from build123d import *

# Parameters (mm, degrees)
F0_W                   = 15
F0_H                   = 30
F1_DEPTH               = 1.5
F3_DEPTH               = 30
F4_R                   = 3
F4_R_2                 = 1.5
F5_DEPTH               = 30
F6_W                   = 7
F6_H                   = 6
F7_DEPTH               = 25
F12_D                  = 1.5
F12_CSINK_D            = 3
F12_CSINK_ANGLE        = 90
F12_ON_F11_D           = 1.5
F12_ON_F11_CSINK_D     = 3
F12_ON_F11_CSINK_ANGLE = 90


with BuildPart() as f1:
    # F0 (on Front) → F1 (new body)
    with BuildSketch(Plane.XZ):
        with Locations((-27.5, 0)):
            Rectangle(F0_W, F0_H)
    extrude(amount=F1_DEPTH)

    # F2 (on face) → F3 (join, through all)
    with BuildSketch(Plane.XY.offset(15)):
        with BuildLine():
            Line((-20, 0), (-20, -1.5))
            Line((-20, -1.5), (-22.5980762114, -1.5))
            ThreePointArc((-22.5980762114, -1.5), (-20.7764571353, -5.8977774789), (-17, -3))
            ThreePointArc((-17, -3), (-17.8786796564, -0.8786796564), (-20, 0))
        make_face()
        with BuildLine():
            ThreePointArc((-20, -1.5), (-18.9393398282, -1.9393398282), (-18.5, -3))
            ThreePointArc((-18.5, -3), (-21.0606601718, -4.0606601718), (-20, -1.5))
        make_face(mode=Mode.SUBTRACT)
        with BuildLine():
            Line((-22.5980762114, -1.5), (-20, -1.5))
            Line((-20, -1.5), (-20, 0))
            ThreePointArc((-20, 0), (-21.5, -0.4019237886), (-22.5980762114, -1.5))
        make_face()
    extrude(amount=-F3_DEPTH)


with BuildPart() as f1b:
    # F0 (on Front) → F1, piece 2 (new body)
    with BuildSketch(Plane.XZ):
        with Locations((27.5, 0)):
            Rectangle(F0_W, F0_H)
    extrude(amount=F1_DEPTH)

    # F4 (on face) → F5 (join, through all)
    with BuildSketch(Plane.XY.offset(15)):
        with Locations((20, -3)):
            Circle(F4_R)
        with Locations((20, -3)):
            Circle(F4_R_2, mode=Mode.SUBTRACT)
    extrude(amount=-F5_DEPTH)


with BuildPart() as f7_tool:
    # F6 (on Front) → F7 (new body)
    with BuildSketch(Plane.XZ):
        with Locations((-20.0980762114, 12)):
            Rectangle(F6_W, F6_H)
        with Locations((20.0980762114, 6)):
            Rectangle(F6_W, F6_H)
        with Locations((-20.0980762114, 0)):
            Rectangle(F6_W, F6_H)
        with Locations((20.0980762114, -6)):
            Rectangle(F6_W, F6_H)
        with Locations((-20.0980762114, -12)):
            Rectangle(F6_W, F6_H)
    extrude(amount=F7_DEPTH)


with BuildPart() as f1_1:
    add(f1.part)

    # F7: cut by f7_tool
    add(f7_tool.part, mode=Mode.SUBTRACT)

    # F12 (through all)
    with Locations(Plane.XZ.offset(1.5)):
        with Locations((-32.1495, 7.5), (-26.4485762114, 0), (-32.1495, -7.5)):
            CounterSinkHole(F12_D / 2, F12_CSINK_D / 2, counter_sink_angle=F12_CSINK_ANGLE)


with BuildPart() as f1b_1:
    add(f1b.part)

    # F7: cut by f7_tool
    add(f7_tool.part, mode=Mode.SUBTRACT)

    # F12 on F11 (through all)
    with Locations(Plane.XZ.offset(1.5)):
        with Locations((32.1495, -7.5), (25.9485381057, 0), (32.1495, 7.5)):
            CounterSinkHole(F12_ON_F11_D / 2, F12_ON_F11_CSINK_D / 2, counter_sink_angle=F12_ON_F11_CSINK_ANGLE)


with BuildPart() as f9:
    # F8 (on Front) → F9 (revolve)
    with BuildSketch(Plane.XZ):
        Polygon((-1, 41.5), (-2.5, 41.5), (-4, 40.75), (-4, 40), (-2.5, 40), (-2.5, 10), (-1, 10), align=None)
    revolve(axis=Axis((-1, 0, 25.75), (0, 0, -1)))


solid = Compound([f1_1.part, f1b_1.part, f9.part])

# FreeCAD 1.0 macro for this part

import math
import FreeCAD as App
import Part
import Sketcher
from FreeCAD import Vector
Q = App.Units.Quantity

doc = App.newDocument("Part")
params = doc.addObject("Spreadsheet::Sheet", "Params")
for row, (alias, value) in enumerate([
    ("sketch1_width", "15 mm"),
    ("sketch1_height", "30 mm"),
    ("pad1_length", "1.5 mm"),
    ("sketch2_radius", "3 mm"),
    ("sketch2_radius2", "1.5 mm"),
    ("pad2_length", "30 mm"),
    ("sketch3_width", "15 mm"),
    ("sketch3_height", "30 mm"),
    ("pad3_length", "1.5 mm"),
    ("sketch4_diameter", "6 mm"),
    ("sketch4_diameter2", "3 mm"),
    ("pad4_length", "30 mm"),
    ("sketch5_width", "7 mm"),
    ("sketch5_height", "6 mm"),
    ("pad5_length", "25 mm"),
    ("sketch6_diameter", "1.5 mm"),
    ("hole_diameter", "1.5 mm"),
    ("hole_csink_diameter", "3 mm"),
    ("sketch7_diameter", "1.5 mm"),
    ("hole2_diameter", "1.5 mm"),
    ("hole2_csink_diameter", "3 mm"),
    ("sketch8_height", "30 mm"),
    ("sketch8_width", "1.5 mm"),
    ("sketch8_height2", "31.5 mm"),
    ("sketch8_height3", "0.75 mm"),
    ("revolution_angle", "360 deg"),
], start=1):
    params.set(f"A{row}", alias)
    params.set(f"B{row}", "=" + value)
    params.setAlias(f"B{row}", alias)

body = doc.addObject("PartDesign::Body", "Body")

sketch1 = body.newObject("Sketcher::SketchObject", "Sketch")
sketch1.AttachmentSupport = (doc.getObject("XZ_Plane"), [""])
sketch1.MapMode = "FlatFace"
sketch1.addGeometry(Part.LineSegment(Vector(-35, 15, 0), Vector(-35, -15, 0)), False)
sketch1.addGeometry(Part.LineSegment(Vector(-35, -15, 0), Vector(-20, -15, 0)), False)
sketch1.addGeometry(Part.LineSegment(Vector(-20, -15, 0), Vector(-20, 15, 0)), False)
sketch1.addGeometry(Part.LineSegment(Vector(-20, 15, 0), Vector(-35, 15, 0)), False)
sketch1.addConstraint(Sketcher.Constraint("Coincident", 0, 2, 1, 1))
sketch1.addConstraint(Sketcher.Constraint("Coincident", 1, 2, 2, 1))
sketch1.addConstraint(Sketcher.Constraint("Coincident", 2, 2, 3, 1))
sketch1.addConstraint(Sketcher.Constraint("Coincident", 3, 2, 0, 1))
sketch1.addConstraint(Sketcher.Constraint("Vertical", 0))
sketch1.addConstraint(Sketcher.Constraint("Horizontal", 1))
sketch1.addConstraint(Sketcher.Constraint("Vertical", 2))
sketch1.addConstraint(Sketcher.Constraint("Horizontal", 3))
sketch1.addConstraint(Sketcher.Constraint("DistanceX", 1, 1, 1, 2, Q("15 mm")))
sketch1.addConstraint(Sketcher.Constraint("DistanceY", 0, 2, 0, 1, Q("30 mm")))
sketch1.addConstraint(Sketcher.Constraint("DistanceX", 0, 2, -1, 1, Q("35 mm")))
sketch1.addConstraint(Sketcher.Constraint("DistanceY", 0, 2, -1, 1, Q("15 mm")))
sketch1.setExpression("Constraints[8]", "Params.sketch1_width")
sketch1.setExpression("Constraints[9]", "Params.sketch1_height")
pad1 = body.newObject("PartDesign::Pad", "Pad")
pad1.Profile = sketch1
pad1.setExpression("Length", "Params.pad1_length")

sketch2 = body.newObject("Sketcher::SketchObject", "Sketch001")
sketch2.AttachmentSupport = (doc.getObject("XY_Plane"), [""])
sketch2.MapMode = "FlatFace"
sketch2.AttachmentOffset = App.Placement(Vector(0, 0, 15), App.Rotation())
sketch2.addGeometry(Part.ArcOfCircle(Part.Circle(Vector(-20, -3, 0), Vector(0, 0, 1), 3), math.radians(150), math.radians(360)), False)
sketch2.addGeometry(Part.ArcOfCircle(Part.Circle(Vector(-20, -3, 0), Vector(0, 0, 1), 3), math.radians(0), math.radians(90)), False)
sketch2.addGeometry(Part.ArcOfCircle(Part.Circle(Vector(-20, -3, 0), Vector(0, 0, 1), 3), math.radians(90), math.radians(150)), False)
sketch2.addGeometry(Part.ArcOfCircle(Part.Circle(Vector(-20, -3, 0), Vector(0, 0, 1), 1.5), math.radians(90), math.radians(360)), False)
sketch2.addGeometry(Part.ArcOfCircle(Part.Circle(Vector(-20, -3, 0), Vector(0, 0, 1), 1.5), math.radians(0), math.radians(90)), False)
sketch2.addConstraint(Sketcher.Constraint("Tangent", 0, 2, 1, 1))
sketch2.addConstraint(Sketcher.Constraint("Tangent", 1, 2, 2, 1))
sketch2.addConstraint(Sketcher.Constraint("Tangent", 2, 2, 0, 1))
sketch2.addConstraint(Sketcher.Constraint("Tangent", 3, 1, 4, 2))
sketch2.addConstraint(Sketcher.Constraint("Coincident", 4, 1, 3, 2))
sketch2.addConstraint(Sketcher.Constraint("Coincident", 3, 3, 0, 3))
sketch2.addConstraint(Sketcher.Constraint("PointOnObject", 1, 2, -1))
sketch2.addConstraint(Sketcher.Constraint("Horizontal", 4, 3, 0, 2))
sketch2.addConstraint(Sketcher.Constraint("Horizontal", 2, 2, 3, 1))
sketch2.addConstraint(Sketcher.Constraint("Horizontal", 0, 2, 4, 1))
sketch2.addConstraint(Sketcher.Constraint("Vertical", 4, 3, 1, 2))
sketch2.addConstraint(Sketcher.Constraint("Vertical", 1, 2, 3, 1))
sketch2.addConstraint(Sketcher.Constraint("Radius", 0, Q("3 mm")))
sketch2.addConstraint(Sketcher.Constraint("Radius", 3, Q("1.5 mm")))
sketch2.addConstraint(Sketcher.Constraint("DistanceX", 0, 3, -1, 1, Q("20 mm")))
sketch2.setExpression("Constraints[12]", "Params.sketch2_radius")
sketch2.setExpression("Constraints[13]", "Params.sketch2_radius2")
pad2 = body.newObject("PartDesign::Pad", "Pad001")
pad2.Profile = sketch2
pad2.setExpression("Length", "Params.pad2_length")
pad2.Reversed = True
body2 = doc.addObject("PartDesign::Body", "Body001")

sketch3 = body2.newObject("Sketcher::SketchObject", "Sketch002")
sketch3.AttachmentSupport = (doc.getObject("XZ_Plane001"), [""])
sketch3.MapMode = "FlatFace"
sketch3.addGeometry(Part.LineSegment(Vector(20, 15, 0), Vector(20, -15, 0)), False)
sketch3.addGeometry(Part.LineSegment(Vector(20, -15, 0), Vector(35, -15, 0)), False)
sketch3.addGeometry(Part.LineSegment(Vector(35, -15, 0), Vector(35, 15, 0)), False)
sketch3.addGeometry(Part.LineSegment(Vector(35, 15, 0), Vector(20, 15, 0)), False)
sketch3.addConstraint(Sketcher.Constraint("Coincident", 0, 2, 1, 1))
sketch3.addConstraint(Sketcher.Constraint("Coincident", 1, 2, 2, 1))
sketch3.addConstraint(Sketcher.Constraint("Coincident", 2, 2, 3, 1))
sketch3.addConstraint(Sketcher.Constraint("Coincident", 3, 2, 0, 1))
sketch3.addConstraint(Sketcher.Constraint("Vertical", 0))
sketch3.addConstraint(Sketcher.Constraint("Horizontal", 1))
sketch3.addConstraint(Sketcher.Constraint("Vertical", 2))
sketch3.addConstraint(Sketcher.Constraint("Horizontal", 3))
sketch3.addConstraint(Sketcher.Constraint("DistanceX", 1, 1, 1, 2, Q("15 mm")))
sketch3.addConstraint(Sketcher.Constraint("DistanceY", 0, 2, 0, 1, Q("30 mm")))
sketch3.addConstraint(Sketcher.Constraint("DistanceX", -1, 1, 0, 2, Q("20 mm")))
sketch3.addConstraint(Sketcher.Constraint("DistanceY", 0, 2, -1, 1, Q("15 mm")))
sketch3.setExpression("Constraints[8]", "Params.sketch3_width")
sketch3.setExpression("Constraints[9]", "Params.sketch3_height")
pad3 = body2.newObject("PartDesign::Pad", "Pad002")
pad3.Profile = sketch3
pad3.setExpression("Length", "Params.pad3_length")

sketch4 = body2.newObject("Sketcher::SketchObject", "Sketch003")
sketch4.AttachmentSupport = (doc.getObject("XY_Plane001"), [""])
sketch4.MapMode = "FlatFace"
sketch4.AttachmentOffset = App.Placement(Vector(0, 0, 15), App.Rotation())
sketch4.addGeometry(Part.Circle(Vector(20, -3, 0), Vector(0, 0, 1), 3), False)
sketch4.addGeometry(Part.Circle(Vector(20, -3, 0), Vector(0, 0, 1), 1.5), False)
sketch4.addConstraint(Sketcher.Constraint("Coincident", 1, 3, 0, 3))
sketch4.addConstraint(Sketcher.Constraint("Diameter", 0, Q("6 mm")))
sketch4.addConstraint(Sketcher.Constraint("Diameter", 1, Q("3 mm")))
sketch4.addConstraint(Sketcher.Constraint("DistanceX", -1, 1, 0, 3, Q("20 mm")))
sketch4.addConstraint(Sketcher.Constraint("DistanceY", 0, 3, -1, 1, Q("3 mm")))
sketch4.setExpression("Constraints[1]", "Params.sketch4_diameter")
sketch4.setExpression("Constraints[2]", "Params.sketch4_diameter2")
pad4 = body2.newObject("PartDesign::Pad", "Pad003")
pad4.Profile = sketch4
pad4.setExpression("Length", "Params.pad4_length")
pad4.Reversed = True
body3 = doc.addObject("PartDesign::Body", "Body002")
body3.AllowCompound = True

sketch5 = body3.newObject("Sketcher::SketchObject", "Sketch004")
sketch5.AttachmentSupport = (doc.getObject("XZ_Plane002"), [""])
sketch5.MapMode = "FlatFace"
sketch5.addGeometry(Part.LineSegment(Vector(-23.598076, 15, 0), Vector(-23.598076, 9, 0)), False)
sketch5.addGeometry(Part.LineSegment(Vector(-23.598076, 9, 0), Vector(-16.598076, 9, 0)), False)
sketch5.addGeometry(Part.LineSegment(Vector(-16.598076, 9, 0), Vector(-16.598076, 15, 0)), False)
sketch5.addGeometry(Part.LineSegment(Vector(-16.598076, 15, 0), Vector(-23.598076, 15, 0)), False)
sketch5.addGeometry(Part.LineSegment(Vector(16.598076, 9, 0), Vector(16.598076, 3, 0)), False)
sketch5.addGeometry(Part.LineSegment(Vector(16.598076, 3, 0), Vector(23.598076, 3, 0)), False)
sketch5.addGeometry(Part.LineSegment(Vector(23.598076, 3, 0), Vector(23.598076, 9, 0)), False)
sketch5.addGeometry(Part.LineSegment(Vector(23.598076, 9, 0), Vector(16.598076, 9, 0)), False)
sketch5.addGeometry(Part.LineSegment(Vector(-23.598076, 3, 0), Vector(-23.598076, -3, 0)), False)
sketch5.addGeometry(Part.LineSegment(Vector(-23.598076, -3, 0), Vector(-16.598076, -3, 0)), False)
sketch5.addGeometry(Part.LineSegment(Vector(-16.598076, -3, 0), Vector(-16.598076, 3, 0)), False)
sketch5.addGeometry(Part.LineSegment(Vector(-16.598076, 3, 0), Vector(-23.598076, 3, 0)), False)
sketch5.addGeometry(Part.LineSegment(Vector(16.598076, -3, 0), Vector(16.598076, -9, 0)), False)
sketch5.addGeometry(Part.LineSegment(Vector(16.598076, -9, 0), Vector(23.598076, -9, 0)), False)
sketch5.addGeometry(Part.LineSegment(Vector(23.598076, -9, 0), Vector(23.598076, -3, 0)), False)
sketch5.addGeometry(Part.LineSegment(Vector(23.598076, -3, 0), Vector(16.598076, -3, 0)), False)
sketch5.addGeometry(Part.LineSegment(Vector(-23.598076, -9, 0), Vector(-23.598076, -15, 0)), False)
sketch5.addGeometry(Part.LineSegment(Vector(-23.598076, -15, 0), Vector(-16.598076, -15, 0)), False)
sketch5.addGeometry(Part.LineSegment(Vector(-16.598076, -15, 0), Vector(-16.598076, -9, 0)), False)
sketch5.addGeometry(Part.LineSegment(Vector(-16.598076, -9, 0), Vector(-23.598076, -9, 0)), False)
sketch5.addConstraint(Sketcher.Constraint("Coincident", 0, 2, 1, 1))
sketch5.addConstraint(Sketcher.Constraint("Coincident", 1, 2, 2, 1))
sketch5.addConstraint(Sketcher.Constraint("Coincident", 2, 2, 3, 1))
sketch5.addConstraint(Sketcher.Constraint("Coincident", 3, 2, 0, 1))
sketch5.addConstraint(Sketcher.Constraint("Coincident", 4, 2, 5, 1))
sketch5.addConstraint(Sketcher.Constraint("Coincident", 5, 2, 6, 1))
sketch5.addConstraint(Sketcher.Constraint("Coincident", 6, 2, 7, 1))
sketch5.addConstraint(Sketcher.Constraint("Coincident", 7, 2, 4, 1))
sketch5.addConstraint(Sketcher.Constraint("Coincident", 8, 2, 9, 1))
sketch5.addConstraint(Sketcher.Constraint("Coincident", 9, 2, 10, 1))
sketch5.addConstraint(Sketcher.Constraint("Coincident", 10, 2, 11, 1))
sketch5.addConstraint(Sketcher.Constraint("Coincident", 11, 2, 8, 1))
sketch5.addConstraint(Sketcher.Constraint("Coincident", 12, 2, 13, 1))
sketch5.addConstraint(Sketcher.Constraint("Coincident", 13, 2, 14, 1))
sketch5.addConstraint(Sketcher.Constraint("Coincident", 14, 2, 15, 1))
sketch5.addConstraint(Sketcher.Constraint("Coincident", 15, 2, 12, 1))
sketch5.addConstraint(Sketcher.Constraint("Coincident", 16, 2, 17, 1))
sketch5.addConstraint(Sketcher.Constraint("Coincident", 17, 2, 18, 1))
sketch5.addConstraint(Sketcher.Constraint("Coincident", 18, 2, 19, 1))
sketch5.addConstraint(Sketcher.Constraint("Coincident", 19, 2, 16, 1))
sketch5.addConstraint(Sketcher.Constraint("Vertical", 0))
sketch5.addConstraint(Sketcher.Constraint("Horizontal", 1))
sketch5.addConstraint(Sketcher.Constraint("Vertical", 2))
sketch5.addConstraint(Sketcher.Constraint("Horizontal", 3))
sketch5.addConstraint(Sketcher.Constraint("Vertical", 4))
sketch5.addConstraint(Sketcher.Constraint("Horizontal", 5))
sketch5.addConstraint(Sketcher.Constraint("Vertical", 6))
sketch5.addConstraint(Sketcher.Constraint("Horizontal", 7))
sketch5.addConstraint(Sketcher.Constraint("Vertical", 8))
sketch5.addConstraint(Sketcher.Constraint("Horizontal", 9))
sketch5.addConstraint(Sketcher.Constraint("Vertical", 10))
sketch5.addConstraint(Sketcher.Constraint("Horizontal", 11))
sketch5.addConstraint(Sketcher.Constraint("Vertical", 12))
sketch5.addConstraint(Sketcher.Constraint("Horizontal", 13))
sketch5.addConstraint(Sketcher.Constraint("Vertical", 14))
sketch5.addConstraint(Sketcher.Constraint("Horizontal", 15))
sketch5.addConstraint(Sketcher.Constraint("Vertical", 16))
sketch5.addConstraint(Sketcher.Constraint("Horizontal", 17))
sketch5.addConstraint(Sketcher.Constraint("Vertical", 18))
sketch5.addConstraint(Sketcher.Constraint("Horizontal", 19))
sketch5.addConstraint(Sketcher.Constraint("Symmetric", 5, 2, 8, 2, -1, 1))
sketch5.addConstraint(Sketcher.Constraint("Symmetric", 1, 2, 12, 2, -1, 1))
sketch5.addConstraint(Sketcher.Constraint("Symmetric", 11, 2, 14, 2, -1, 1))
sketch5.addConstraint(Sketcher.Constraint("Symmetric", 7, 2, 18, 2, -1, 1))
sketch5.addConstraint(Sketcher.Constraint("Symmetric", 0, 2, 6, 2, -2))
sketch5.addConstraint(Sketcher.Constraint("Symmetric", 4, 2, 10, 2, -2))
sketch5.addConstraint(Sketcher.Constraint("Symmetric", 3, 2, 16, 2, -1))
sketch5.addConstraint(Sketcher.Constraint("Vertical", 2, 2, 9, 2))
sketch5.addConstraint(Sketcher.Constraint("Equal", 2, 4))
sketch5.addConstraint(Sketcher.Constraint("Equal", 6, 8))
sketch5.addConstraint(Sketcher.Constraint("DistanceX", 1, 1, 1, 2, Q("7 mm")))
sketch5.addConstraint(Sketcher.Constraint("DistanceY", 0, 2, 0, 1, Q("6 mm")))
sketch5.addConstraint(Sketcher.Constraint("DistanceX", 0, 2, -1, 1, Q("23.598076 mm")))
sketch5.setExpression("Constraints[50]", "Params.sketch5_width")
sketch5.setExpression("Constraints[51]", "Params.sketch5_height")
pad5 = body3.newObject("PartDesign::Pad", "Pad004")
pad5.Profile = sketch5
pad5.setExpression("Length", "Params.pad5_length")
doc.recompute()

body4 = doc.addObject("PartDesign::Body", "Body003")
body4.BaseFeature = body3
boolean = body.newObject("PartDesign::Boolean", "Boolean")
boolean.Type = "Cut"
boolean.addObjects([body4])
doc.recompute()

sketch6 = body.newObject("Sketcher::SketchObject", "Sketch005")
sketch6.AttachmentSupport = (doc.getObject("XZ_Plane"), [""])
sketch6.MapMode = "FlatFace"
sketch6.AttachmentOffset = App.Placement(Vector(0, 0, 1.5), App.Rotation())
sketch6.addGeometry(Part.Circle(Vector(-32.1495, 7.5, 0), Vector(0, 0, 1), 0.75), False)
sketch6.addGeometry(Part.Circle(Vector(-26.448576, 0, 0), Vector(0, 0, 1), 0.75), False)
sketch6.addGeometry(Part.Circle(Vector(-32.1495, -7.5, 0), Vector(0, 0, 1), 0.75), False)
sketch6.addConstraint(Sketcher.Constraint("Equal", 0, 1))
sketch6.addConstraint(Sketcher.Constraint("Equal", 1, 2))
sketch6.addConstraint(Sketcher.Constraint("Symmetric", 0, 3, 2, 3, -1))
sketch6.addConstraint(Sketcher.Constraint("PointOnObject", 1, 3, -1))
sketch6.addConstraint(Sketcher.Constraint("Diameter", 0, Q("1.5 mm")))
sketch6.addConstraint(Sketcher.Constraint("DistanceY", 2, 3, 0, 3, Q("15 mm")))
sketch6.addConstraint(Sketcher.Constraint("DistanceX", 0, 3, -1, 1, Q("32.1495 mm")))
sketch6.addConstraint(Sketcher.Constraint("DistanceX", 1, 3, -1, 1, Q("26.448576 mm")))
sketch6.setExpression("Constraints[4]", "Params.sketch6_diameter")
doc.recompute()
hole = body.newObject("PartDesign::Hole", "Hole")
hole.Profile = sketch6
hole.ThreadType = "None"
hole.setExpression("Diameter", "Params.hole_diameter")
hole.DepthType = "ThroughAll"
hole.HoleCutType = "Countersink"
hole.setExpression("HoleCutDiameter", "Params.hole_csink_diameter")
hole.HoleCutCountersinkAngle = 90
doc.recompute()

boolean2 = body2.newObject("PartDesign::Boolean", "Boolean001")
boolean2.Type = "Cut"
boolean2.addObjects([body3])

sketch7 = body2.newObject("Sketcher::SketchObject", "Sketch006")
sketch7.AttachmentSupport = (doc.getObject("XZ_Plane001"), [""])
sketch7.MapMode = "FlatFace"
sketch7.AttachmentOffset = App.Placement(Vector(0, 0, 1.5), App.Rotation())
sketch7.addGeometry(Part.Circle(Vector(32.1495, -7.5, 0), Vector(0, 0, 1), 0.75), False)
sketch7.addGeometry(Part.Circle(Vector(25.948538, 0, 0), Vector(0, 0, 1), 0.75), False)
sketch7.addGeometry(Part.Circle(Vector(32.1495, 7.5, 0), Vector(0, 0, 1), 0.75), False)
sketch7.addConstraint(Sketcher.Constraint("Equal", 0, 1))
sketch7.addConstraint(Sketcher.Constraint("Equal", 1, 2))
sketch7.addConstraint(Sketcher.Constraint("Symmetric", 0, 3, 2, 3, -1))
sketch7.addConstraint(Sketcher.Constraint("PointOnObject", 1, 3, -1))
sketch7.addConstraint(Sketcher.Constraint("Diameter", 0, Q("1.5 mm")))
sketch7.addConstraint(Sketcher.Constraint("DistanceY", 0, 3, 2, 3, Q("15 mm")))
sketch7.addConstraint(Sketcher.Constraint("DistanceX", -1, 1, 0, 3, Q("32.1495 mm")))
sketch7.addConstraint(Sketcher.Constraint("DistanceX", -1, 1, 1, 3, Q("25.948538 mm")))
sketch7.setExpression("Constraints[4]", "Params.sketch7_diameter")
doc.recompute()
hole2 = body2.newObject("PartDesign::Hole", "Hole001")
hole2.Profile = sketch7
hole2.ThreadType = "None"
hole2.setExpression("Diameter", "Params.hole2_diameter")
hole2.DepthType = "ThroughAll"
hole2.HoleCutType = "Countersink"
hole2.setExpression("HoleCutDiameter", "Params.hole2_csink_diameter")
hole2.HoleCutCountersinkAngle = 90
body5 = doc.addObject("PartDesign::Body", "Body004")

sketch8 = body5.newObject("Sketcher::SketchObject", "Sketch007")
sketch8.AttachmentSupport = (doc.getObject("XZ_Plane004"), [""])
sketch8.MapMode = "FlatFace"
sketch8.addGeometry(Part.LineSegment(Vector(-1, 41.5, 0), Vector(-2.5, 41.5, 0)), False)
sketch8.addGeometry(Part.LineSegment(Vector(-2.5, 41.5, 0), Vector(-4, 40.75, 0)), False)
sketch8.addGeometry(Part.LineSegment(Vector(-4, 40.75, 0), Vector(-4, 40, 0)), False)
sketch8.addGeometry(Part.LineSegment(Vector(-4, 40, 0), Vector(-2.5, 40, 0)), False)
sketch8.addGeometry(Part.LineSegment(Vector(-2.5, 40, 0), Vector(-2.5, 10, 0)), False)
sketch8.addGeometry(Part.LineSegment(Vector(-2.5, 10, 0), Vector(-1, 10, 0)), False)
sketch8.addGeometry(Part.LineSegment(Vector(-1, 10, 0), Vector(-1, 41.5, 0)), False)
sketch8.addGeometry(Part.LineSegment(Vector(-1, 41.5, 0), Vector(-1, 10, 0)), True)
sketch8.addConstraint(Sketcher.Constraint("Coincident", 0, 2, 1, 1))
sketch8.addConstraint(Sketcher.Constraint("Coincident", 1, 2, 2, 1))
sketch8.addConstraint(Sketcher.Constraint("Coincident", 2, 2, 3, 1))
sketch8.addConstraint(Sketcher.Constraint("Coincident", 3, 2, 4, 1))
sketch8.addConstraint(Sketcher.Constraint("Coincident", 4, 2, 5, 1))
sketch8.addConstraint(Sketcher.Constraint("Coincident", 5, 2, 6, 1))
sketch8.addConstraint(Sketcher.Constraint("Coincident", 6, 2, 0, 1))
sketch8.addConstraint(Sketcher.Constraint("Horizontal", 0))
sketch8.addConstraint(Sketcher.Constraint("Vertical", 2))
sketch8.addConstraint(Sketcher.Constraint("Horizontal", 3))
sketch8.addConstraint(Sketcher.Constraint("Vertical", 4))
sketch8.addConstraint(Sketcher.Constraint("Horizontal", 5))
sketch8.addConstraint(Sketcher.Constraint("Vertical", 6))
sketch8.addConstraint(Sketcher.Constraint("Vertical", 7))
sketch8.addConstraint(Sketcher.Constraint("Coincident", 7, 1, 6, 2))
sketch8.addConstraint(Sketcher.Constraint("Horizontal", 4, 2, 7, 2))
sketch8.addConstraint(Sketcher.Constraint("Vertical", 0, 2, 3, 2))
sketch8.addConstraint(Sketcher.Constraint("Equal", 0, 3))
sketch8.addConstraint(Sketcher.Constraint("DistanceY", 4, 2, 4, 1, Q("30 mm")))
sketch8.addConstraint(Sketcher.Constraint("DistanceX", 0, 2, 0, 1, Q("1.5 mm")))
sketch8.addConstraint(Sketcher.Constraint("DistanceY", 6, 1, 6, 2, Q("31.5 mm")))
sketch8.addConstraint(Sketcher.Constraint("DistanceX", 1, 2, -1, 1, Q("4 mm")))
sketch8.addConstraint(Sketcher.Constraint("DistanceY", -1, 1, 2, 2, Q("40 mm")))
sketch8.addConstraint(Sketcher.Constraint("DistanceY", 2, 2, 2, 1, Q("0.75 mm")))
sketch8.setExpression("Constraints[18]", "Params.sketch8_height")
sketch8.setExpression("Constraints[19]", "Params.sketch8_width")
sketch8.setExpression("Constraints[20]", "Params.sketch8_height2")
sketch8.setExpression("Constraints[23]", "Params.sketch8_height3")
revolution = body5.newObject("PartDesign::Revolution", "Revolution")
revolution.Profile = sketch8
revolution.ReferenceAxis = (sketch8, ["Axis0"])
revolution.setExpression("Angle", "Params.revolution_angle")

doc.recompute()
